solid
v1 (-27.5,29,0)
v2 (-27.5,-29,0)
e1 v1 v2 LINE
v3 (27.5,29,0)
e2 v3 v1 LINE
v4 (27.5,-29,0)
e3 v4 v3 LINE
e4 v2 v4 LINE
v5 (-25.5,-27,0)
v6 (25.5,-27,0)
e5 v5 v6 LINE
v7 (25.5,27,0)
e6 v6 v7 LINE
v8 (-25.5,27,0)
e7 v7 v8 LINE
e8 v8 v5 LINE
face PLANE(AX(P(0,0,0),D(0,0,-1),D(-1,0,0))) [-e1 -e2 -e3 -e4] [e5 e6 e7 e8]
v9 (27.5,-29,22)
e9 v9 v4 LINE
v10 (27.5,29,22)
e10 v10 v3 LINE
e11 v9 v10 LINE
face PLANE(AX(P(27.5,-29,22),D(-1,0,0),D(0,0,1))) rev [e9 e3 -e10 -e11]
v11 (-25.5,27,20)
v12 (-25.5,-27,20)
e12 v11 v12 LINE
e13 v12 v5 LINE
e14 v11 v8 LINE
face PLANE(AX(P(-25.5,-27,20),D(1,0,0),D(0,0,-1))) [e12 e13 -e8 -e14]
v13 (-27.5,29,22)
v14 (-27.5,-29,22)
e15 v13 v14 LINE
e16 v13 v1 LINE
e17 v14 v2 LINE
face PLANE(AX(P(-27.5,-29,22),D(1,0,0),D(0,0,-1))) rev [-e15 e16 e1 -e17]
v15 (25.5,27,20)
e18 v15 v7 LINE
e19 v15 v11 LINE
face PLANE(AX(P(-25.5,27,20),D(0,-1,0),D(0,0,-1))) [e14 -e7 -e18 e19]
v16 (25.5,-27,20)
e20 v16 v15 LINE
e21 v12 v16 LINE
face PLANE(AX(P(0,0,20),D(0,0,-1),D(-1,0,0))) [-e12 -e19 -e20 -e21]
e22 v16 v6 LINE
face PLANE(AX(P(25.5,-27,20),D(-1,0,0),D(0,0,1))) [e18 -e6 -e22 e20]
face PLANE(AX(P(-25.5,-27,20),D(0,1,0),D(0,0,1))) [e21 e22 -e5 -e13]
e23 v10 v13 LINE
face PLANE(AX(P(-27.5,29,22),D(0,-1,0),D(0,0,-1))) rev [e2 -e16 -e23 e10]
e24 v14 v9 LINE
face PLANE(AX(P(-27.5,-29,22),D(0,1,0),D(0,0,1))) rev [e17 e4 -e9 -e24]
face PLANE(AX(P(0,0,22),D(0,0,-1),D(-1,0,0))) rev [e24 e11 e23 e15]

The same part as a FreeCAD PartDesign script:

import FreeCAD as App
import Part
import Sketcher

V = App.Vector

doc = App.newDocument("Part")
body = doc.addObject("PartDesign::Body", "Body")

sketch1 = body.newObject("Sketcher::SketchObject", "Sketch")
sketch1.AttachmentSupport = (doc.getObject("XY_Plane"), [""])
sketch1.MapMode = "FlatFace"
sketch1.addGeometry(Part.LineSegment(V(-28, 29, 0), V(-28, -29, 0)), False)
sketch1.addGeometry(Part.LineSegment(V(-28, -29, 0), V(28, -29, 0)), False)
sketch1.addGeometry(Part.LineSegment(V(28, -29, 0), V(28, 29, 0)), False)
sketch1.addGeometry(Part.LineSegment(V(28, 29, 0), V(-28, 29, 0)), False)
sketch1.addConstraint(Sketcher.Constraint("Coincident", 0, 2, 1, 1))
sketch1.addConstraint(Sketcher.Constraint("Coincident", 1, 2, 2, 1))
sketch1.addConstraint(Sketcher.Constraint("Coincident", 2, 2, 3, 1))
sketch1.addConstraint(Sketcher.Constraint("Coincident", 3, 2, 0, 1))
sketch1.addConstraint(Sketcher.Constraint("Vertical", 0))
sketch1.addConstraint(Sketcher.Constraint("Horizontal", 1))
sketch1.addConstraint(Sketcher.Constraint("Vertical", 2))
sketch1.addConstraint(Sketcher.Constraint("Horizontal", 3))
sketch1.addConstraint(Sketcher.Constraint("Symmetric", 0, 2, 2, 2, -1, 1))
sketch1.addConstraint(Sketcher.Constraint("DistanceX", 1, 1, 1, 2, 55.0))
sketch1.addConstraint(Sketcher.Constraint("DistanceY", 0, 2, 0, 1, 58.0))
pad1 = body.newObject("PartDesign::Pad", "Pad")
pad1.Profile = sketch1
pad1.Length = 22

sketch2 = body.newObject("Sketcher::SketchObject", "Sketch001")
sketch2.AttachmentSupport = (doc.getObject("XY_Plane"), [""])
sketch2.MapMode = "FlatFace"
sketch2.addGeometry(Part.LineSegment(V(-26, 27, 0), V(-26, -27, 0)), False)
sketch2.addGeometry(Part.LineSegment(V(-26, -27, 0), V(26, -27, 0)), False)
sketch2.addGeometry(Part.LineSegment(V(26, -27, 0), V(26, 27, 0)), False)
sketch2.addGeometry(Part.LineSegment(V(26, 27, 0), V(-26, 27, 0)), False)
sketch2.addConstraint(Sketcher.Constraint("Coincident", 0, 2, 1, 1))
sketch2.addConstraint(Sketcher.Constraint("Coincident", 1, 2, 2, 1))
sketch2.addConstraint(Sketcher.Constraint("Coincident", 2, 2, 3, 1))
sketch2.addConstraint(Sketcher.Constraint("Coincident", 3, 2, 0, 1))
sketch2.addConstraint(Sketcher.Constraint("Vertical", 0))
sketch2.addConstraint(Sketcher.Constraint("Horizontal", 1))
sketch2.addConstraint(Sketcher.Constraint("Vertical", 2))
sketch2.addConstraint(Sketcher.Constraint("Horizontal", 3))
sketch2.addConstraint(Sketcher.Constraint("Symmetric", 0, 2, 2, 2, -1, 1))
sketch2.addConstraint(Sketcher.Constraint("DistanceX", 1, 1, 1, 2, 51.0))
sketch2.addConstraint(Sketcher.Constraint("DistanceY", 0, 2, 0, 1, 54.0))
pocket1 = body.newObject("PartDesign::Pocket", "Pocket")
pocket1.Profile = sketch2
pocket1.Length = 20
pocket1.Reversed = True

doc.recompute()
